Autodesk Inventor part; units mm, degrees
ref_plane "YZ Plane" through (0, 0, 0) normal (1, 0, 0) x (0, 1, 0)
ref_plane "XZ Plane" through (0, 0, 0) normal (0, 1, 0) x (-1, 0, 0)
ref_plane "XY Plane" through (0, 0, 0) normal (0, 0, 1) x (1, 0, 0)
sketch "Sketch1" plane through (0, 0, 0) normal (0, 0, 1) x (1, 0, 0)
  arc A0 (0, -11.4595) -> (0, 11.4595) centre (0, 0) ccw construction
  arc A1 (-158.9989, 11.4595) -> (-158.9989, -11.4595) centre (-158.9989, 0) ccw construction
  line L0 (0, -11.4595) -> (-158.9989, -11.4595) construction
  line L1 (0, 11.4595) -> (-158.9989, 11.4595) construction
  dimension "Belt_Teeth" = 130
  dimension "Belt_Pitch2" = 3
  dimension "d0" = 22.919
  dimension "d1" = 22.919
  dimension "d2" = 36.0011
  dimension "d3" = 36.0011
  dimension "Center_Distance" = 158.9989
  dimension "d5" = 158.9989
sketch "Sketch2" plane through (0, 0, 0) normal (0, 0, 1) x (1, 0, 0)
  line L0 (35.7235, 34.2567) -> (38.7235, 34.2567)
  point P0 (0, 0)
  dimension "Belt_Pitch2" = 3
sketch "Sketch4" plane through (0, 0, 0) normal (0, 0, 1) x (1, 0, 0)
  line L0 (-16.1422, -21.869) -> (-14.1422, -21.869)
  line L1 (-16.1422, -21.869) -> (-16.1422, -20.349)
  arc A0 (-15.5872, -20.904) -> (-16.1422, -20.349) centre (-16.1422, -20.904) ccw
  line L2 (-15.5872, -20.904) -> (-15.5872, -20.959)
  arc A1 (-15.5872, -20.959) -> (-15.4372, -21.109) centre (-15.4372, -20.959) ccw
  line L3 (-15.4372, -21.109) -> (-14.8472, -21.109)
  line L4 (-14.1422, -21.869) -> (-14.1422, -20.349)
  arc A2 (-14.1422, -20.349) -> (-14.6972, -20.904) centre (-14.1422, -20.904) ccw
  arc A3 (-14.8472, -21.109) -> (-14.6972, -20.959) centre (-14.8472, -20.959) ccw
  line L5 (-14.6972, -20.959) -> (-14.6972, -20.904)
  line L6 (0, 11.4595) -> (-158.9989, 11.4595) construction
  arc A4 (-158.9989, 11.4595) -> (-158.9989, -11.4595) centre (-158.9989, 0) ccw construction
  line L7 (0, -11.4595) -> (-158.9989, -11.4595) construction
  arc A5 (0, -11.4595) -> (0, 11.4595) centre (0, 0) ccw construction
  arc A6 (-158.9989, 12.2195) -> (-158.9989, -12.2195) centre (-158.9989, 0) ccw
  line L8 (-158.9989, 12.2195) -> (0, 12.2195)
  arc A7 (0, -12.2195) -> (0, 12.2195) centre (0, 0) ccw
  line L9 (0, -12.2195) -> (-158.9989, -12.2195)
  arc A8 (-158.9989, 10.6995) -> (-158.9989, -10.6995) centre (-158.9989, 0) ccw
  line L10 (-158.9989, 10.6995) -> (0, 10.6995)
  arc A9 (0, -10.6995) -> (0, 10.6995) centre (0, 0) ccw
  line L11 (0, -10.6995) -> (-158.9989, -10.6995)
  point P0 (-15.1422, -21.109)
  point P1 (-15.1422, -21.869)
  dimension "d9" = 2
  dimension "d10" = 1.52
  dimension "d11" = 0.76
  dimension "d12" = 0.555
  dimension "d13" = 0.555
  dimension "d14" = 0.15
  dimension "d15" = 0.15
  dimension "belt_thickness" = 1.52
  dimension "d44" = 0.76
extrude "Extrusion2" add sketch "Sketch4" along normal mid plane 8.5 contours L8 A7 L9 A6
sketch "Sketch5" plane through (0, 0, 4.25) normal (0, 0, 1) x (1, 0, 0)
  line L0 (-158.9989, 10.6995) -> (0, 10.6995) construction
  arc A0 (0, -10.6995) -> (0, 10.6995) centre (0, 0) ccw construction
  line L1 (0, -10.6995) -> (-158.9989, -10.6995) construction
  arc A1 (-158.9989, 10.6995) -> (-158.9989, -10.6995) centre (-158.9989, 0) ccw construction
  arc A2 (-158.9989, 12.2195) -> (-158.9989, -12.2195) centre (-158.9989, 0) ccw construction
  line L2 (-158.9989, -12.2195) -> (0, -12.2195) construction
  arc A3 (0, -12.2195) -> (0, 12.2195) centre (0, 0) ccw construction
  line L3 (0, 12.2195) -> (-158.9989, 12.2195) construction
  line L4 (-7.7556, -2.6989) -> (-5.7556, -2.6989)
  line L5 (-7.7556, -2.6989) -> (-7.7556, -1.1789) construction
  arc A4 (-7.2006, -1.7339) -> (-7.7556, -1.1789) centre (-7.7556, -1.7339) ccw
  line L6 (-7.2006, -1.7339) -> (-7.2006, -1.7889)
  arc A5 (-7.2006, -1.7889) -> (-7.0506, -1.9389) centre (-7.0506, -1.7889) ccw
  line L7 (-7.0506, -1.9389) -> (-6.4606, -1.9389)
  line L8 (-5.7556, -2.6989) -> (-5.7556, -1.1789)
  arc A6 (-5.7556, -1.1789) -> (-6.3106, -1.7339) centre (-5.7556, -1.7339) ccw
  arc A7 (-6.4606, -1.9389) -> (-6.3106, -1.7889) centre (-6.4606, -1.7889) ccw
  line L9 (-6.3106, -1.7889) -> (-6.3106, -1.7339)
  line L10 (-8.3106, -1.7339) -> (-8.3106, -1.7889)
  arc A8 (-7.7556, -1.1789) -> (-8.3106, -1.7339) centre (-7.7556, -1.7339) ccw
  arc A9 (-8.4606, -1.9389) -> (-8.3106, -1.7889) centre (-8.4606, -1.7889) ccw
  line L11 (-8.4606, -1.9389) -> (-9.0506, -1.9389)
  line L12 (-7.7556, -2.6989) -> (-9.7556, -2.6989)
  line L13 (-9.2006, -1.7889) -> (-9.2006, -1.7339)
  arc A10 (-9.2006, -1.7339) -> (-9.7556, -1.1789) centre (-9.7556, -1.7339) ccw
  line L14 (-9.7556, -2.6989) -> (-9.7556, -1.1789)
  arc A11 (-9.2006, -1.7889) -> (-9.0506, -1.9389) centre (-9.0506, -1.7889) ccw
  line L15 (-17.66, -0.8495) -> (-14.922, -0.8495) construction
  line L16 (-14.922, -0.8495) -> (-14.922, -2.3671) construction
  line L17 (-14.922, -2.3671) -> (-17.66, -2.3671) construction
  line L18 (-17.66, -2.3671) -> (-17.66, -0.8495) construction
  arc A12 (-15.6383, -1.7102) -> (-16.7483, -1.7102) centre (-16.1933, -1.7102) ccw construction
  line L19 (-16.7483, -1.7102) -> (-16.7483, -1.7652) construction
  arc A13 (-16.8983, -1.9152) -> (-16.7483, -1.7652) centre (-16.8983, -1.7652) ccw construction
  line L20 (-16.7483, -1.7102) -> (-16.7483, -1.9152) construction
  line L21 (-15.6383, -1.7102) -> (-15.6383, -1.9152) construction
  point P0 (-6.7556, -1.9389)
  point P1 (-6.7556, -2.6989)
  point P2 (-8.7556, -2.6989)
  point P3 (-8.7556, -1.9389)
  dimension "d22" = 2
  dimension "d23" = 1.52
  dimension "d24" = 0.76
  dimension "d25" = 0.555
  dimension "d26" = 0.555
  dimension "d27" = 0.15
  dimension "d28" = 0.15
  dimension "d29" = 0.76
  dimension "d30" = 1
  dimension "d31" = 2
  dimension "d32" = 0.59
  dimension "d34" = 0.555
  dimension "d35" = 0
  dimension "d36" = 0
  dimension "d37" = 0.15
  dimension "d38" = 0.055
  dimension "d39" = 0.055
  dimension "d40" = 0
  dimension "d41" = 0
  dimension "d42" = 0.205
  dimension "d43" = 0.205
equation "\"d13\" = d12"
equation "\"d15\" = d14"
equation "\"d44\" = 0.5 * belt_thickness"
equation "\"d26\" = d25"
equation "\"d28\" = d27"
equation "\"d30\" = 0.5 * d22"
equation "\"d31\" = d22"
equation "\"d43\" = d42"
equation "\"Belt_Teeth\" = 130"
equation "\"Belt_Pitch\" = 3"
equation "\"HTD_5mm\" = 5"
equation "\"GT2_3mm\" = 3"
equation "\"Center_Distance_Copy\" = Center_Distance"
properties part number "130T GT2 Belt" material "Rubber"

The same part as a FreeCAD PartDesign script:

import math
import FreeCAD as App
import Part
import Sketcher

V = App.Vector
Q = App.Units.Quantity

doc = App.newDocument("Part")
body = doc.addObject("PartDesign::Body", "Body")

sketch1 = doc.addObject("Sketcher::SketchObject", "Sketch")
body.addObject(sketch1)
sketch1.AttachmentSupport = (doc.XY_Plane, [""])
sketch1.MapMode = "FlatFace"
sketch1.addGeometry([
    Part.LineSegment(V(0, 12, 0), V(-159, 12, 0)),
    Part.ArcOfCircle(Part.Circle(V(-159, 0, 0), V(0, 0, 1), 12), math.radians(90), math.radians(270)),
    Part.LineSegment(V(-159, -12, 0), V(0, -12, 0)),
    Part.ArcOfCircle(Part.Circle(V(0, 0, 0), V(0, 0, 1), 12), math.radians(-90), math.radians(90)),
    Part.ArcOfCircle(Part.Circle(V(-159, 0, 0), V(0, 0, 1), 11), math.radians(90), math.radians(270)),
    Part.LineSegment(V(-159, 11, 0), V(0, 11, 0)),
    Part.ArcOfCircle(Part.Circle(V(0, 0, 0), V(0, 0, 1), 11), math.radians(-90), math.radians(90)),
    Part.LineSegment(V(0, -11, 0), V(-159, -11, 0)),
], False)
sketch1.addConstraint([
    Sketcher.Constraint("Tangent", 0, 2, 1, 1),
    Sketcher.Constraint("Tangent", 1, 2, 2, 1),
    Sketcher.Constraint("Tangent", 2, 2, 3, 1),
    Sketcher.Constraint("Tangent", 3, 2, 0, 1),
    Sketcher.Constraint("Tangent", 4, 1, 5, 1),
    Sketcher.Constraint("Tangent", 5, 2, 6, 2),
    Sketcher.Constraint("Tangent", 6, 1, 7, 1),
    Sketcher.Constraint("Tangent", 7, 2, 4, 2),
    Sketcher.Constraint("Horizontal", 0),
    Sketcher.Constraint("Horizontal", 2),
    Sketcher.Constraint("Horizontal", 5),
    Sketcher.Constraint("Horizontal", 7),
    Sketcher.Constraint("Coincident", 3, 3, -1, 1),
    Sketcher.Constraint("Coincident", 6, 3, -1, 1),
    Sketcher.Constraint("Vertical", 4, 3, 0, 2),
    Sketcher.Constraint("DistanceY", 4, 1, 0, 2, Q("1.52 mm")),
    Sketcher.Constraint("Radius", 1, Q("12.2195 mm")),
    Sketcher.Constraint("DistanceX", 0, 2, 0, 1, Q("158.999 mm")),
])
pad1 = doc.addObject("PartDesign::Pad", "Pad")
body.addObject(pad1)
pad1.Profile = sketch1
pad1.Length = 8.5
pad1.Midplane = True

doc.recompute()
